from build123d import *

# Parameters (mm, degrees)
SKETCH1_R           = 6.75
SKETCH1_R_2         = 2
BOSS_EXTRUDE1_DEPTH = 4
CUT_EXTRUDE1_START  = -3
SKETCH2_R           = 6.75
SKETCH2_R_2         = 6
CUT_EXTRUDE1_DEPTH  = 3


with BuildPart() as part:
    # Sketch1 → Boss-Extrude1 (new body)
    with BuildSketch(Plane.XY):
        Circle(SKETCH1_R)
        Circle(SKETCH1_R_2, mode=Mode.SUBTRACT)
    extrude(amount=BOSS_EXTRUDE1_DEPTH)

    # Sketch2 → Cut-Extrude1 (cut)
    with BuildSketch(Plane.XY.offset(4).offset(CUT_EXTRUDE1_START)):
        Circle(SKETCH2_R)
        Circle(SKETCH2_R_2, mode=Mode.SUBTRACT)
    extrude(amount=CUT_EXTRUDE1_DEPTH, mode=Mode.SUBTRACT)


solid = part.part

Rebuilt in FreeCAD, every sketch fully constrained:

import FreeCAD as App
import Part
import Sketcher
from FreeCAD import Vector
Q = App.Units.Quantity

doc = App.newDocument("Part")
body = doc.addObject("PartDesign::Body", "Body")

# Sketch on XY plane
sketch1 = doc.addObject("Sketcher::SketchObject", "Sketch")
body.addObject(sketch1)
sketch1.AttachmentSupport = (doc.XY_Plane, [""])
sketch1.MapMode = "FlatFace"
sketch1.addGeometry(Part.Circle(Vector(0, 0, 0), Vector(0, 0, 1), 6.8), False)
sketch1.addGeometry(Part.Circle(Vector(0, 0, 0), Vector(0, 0, 1), 2), False)
sketch1.addConstraint(Sketcher.Constraint("Coincident", 0, 3, -1, 1))
sketch1.addConstraint(Sketcher.Constraint("Coincident", 1, 3, -1, 1))
sketch1.addConstraint(Sketcher.Constraint("Diameter", 1, Q("4 mm")))
sketch1.addConstraint(Sketcher.Constraint("Diameter", 0, Q("13.5 mm")))
pad1 = doc.addObject("PartDesign::Pad", "Pad")
body.addObject(pad1)
pad1.Profile = sketch1
pad1.Length = 4

# Sketch on XY plane
sketch2 = doc.addObject("Sketcher::SketchObject", "Sketch001")
body.addObject(sketch2)
sketch2.AttachmentSupport = (doc.XY_Plane, [""])
sketch2.MapMode = "FlatFace"
sketch2.AttachmentOffset = App.Placement(Vector(0, 0, 1), App.Rotation())
sketch2.addGeometry(Part.Circle(Vector(0, 0, 0), Vector(0, 0, 1), 7), False)
sketch2.addGeometry(Part.Circle(Vector(0, 0, 0), Vector(0, 0, 1), 6), False)
sketch2.addConstraint(Sketcher.Constraint("Coincident", 0, 3, -1, 1))
sketch2.addConstraint(Sketcher.Constraint("Coincident", 1, 3, -1, 1))
sketch2.addConstraint(Sketcher.Constraint("Diameter", 1, Q("12 mm")))
sketch2.addConstraint(Sketcher.Constraint("Diameter", 0, Q("13.5 mm")))
pocket1 = doc.addObject("PartDesign::Pocket", "Pocket")
body.addObject(pocket1)
pocket1.Profile = sketch2
pocket1.Length = 3
pocket1.Reversed = True

doc.recompute()
